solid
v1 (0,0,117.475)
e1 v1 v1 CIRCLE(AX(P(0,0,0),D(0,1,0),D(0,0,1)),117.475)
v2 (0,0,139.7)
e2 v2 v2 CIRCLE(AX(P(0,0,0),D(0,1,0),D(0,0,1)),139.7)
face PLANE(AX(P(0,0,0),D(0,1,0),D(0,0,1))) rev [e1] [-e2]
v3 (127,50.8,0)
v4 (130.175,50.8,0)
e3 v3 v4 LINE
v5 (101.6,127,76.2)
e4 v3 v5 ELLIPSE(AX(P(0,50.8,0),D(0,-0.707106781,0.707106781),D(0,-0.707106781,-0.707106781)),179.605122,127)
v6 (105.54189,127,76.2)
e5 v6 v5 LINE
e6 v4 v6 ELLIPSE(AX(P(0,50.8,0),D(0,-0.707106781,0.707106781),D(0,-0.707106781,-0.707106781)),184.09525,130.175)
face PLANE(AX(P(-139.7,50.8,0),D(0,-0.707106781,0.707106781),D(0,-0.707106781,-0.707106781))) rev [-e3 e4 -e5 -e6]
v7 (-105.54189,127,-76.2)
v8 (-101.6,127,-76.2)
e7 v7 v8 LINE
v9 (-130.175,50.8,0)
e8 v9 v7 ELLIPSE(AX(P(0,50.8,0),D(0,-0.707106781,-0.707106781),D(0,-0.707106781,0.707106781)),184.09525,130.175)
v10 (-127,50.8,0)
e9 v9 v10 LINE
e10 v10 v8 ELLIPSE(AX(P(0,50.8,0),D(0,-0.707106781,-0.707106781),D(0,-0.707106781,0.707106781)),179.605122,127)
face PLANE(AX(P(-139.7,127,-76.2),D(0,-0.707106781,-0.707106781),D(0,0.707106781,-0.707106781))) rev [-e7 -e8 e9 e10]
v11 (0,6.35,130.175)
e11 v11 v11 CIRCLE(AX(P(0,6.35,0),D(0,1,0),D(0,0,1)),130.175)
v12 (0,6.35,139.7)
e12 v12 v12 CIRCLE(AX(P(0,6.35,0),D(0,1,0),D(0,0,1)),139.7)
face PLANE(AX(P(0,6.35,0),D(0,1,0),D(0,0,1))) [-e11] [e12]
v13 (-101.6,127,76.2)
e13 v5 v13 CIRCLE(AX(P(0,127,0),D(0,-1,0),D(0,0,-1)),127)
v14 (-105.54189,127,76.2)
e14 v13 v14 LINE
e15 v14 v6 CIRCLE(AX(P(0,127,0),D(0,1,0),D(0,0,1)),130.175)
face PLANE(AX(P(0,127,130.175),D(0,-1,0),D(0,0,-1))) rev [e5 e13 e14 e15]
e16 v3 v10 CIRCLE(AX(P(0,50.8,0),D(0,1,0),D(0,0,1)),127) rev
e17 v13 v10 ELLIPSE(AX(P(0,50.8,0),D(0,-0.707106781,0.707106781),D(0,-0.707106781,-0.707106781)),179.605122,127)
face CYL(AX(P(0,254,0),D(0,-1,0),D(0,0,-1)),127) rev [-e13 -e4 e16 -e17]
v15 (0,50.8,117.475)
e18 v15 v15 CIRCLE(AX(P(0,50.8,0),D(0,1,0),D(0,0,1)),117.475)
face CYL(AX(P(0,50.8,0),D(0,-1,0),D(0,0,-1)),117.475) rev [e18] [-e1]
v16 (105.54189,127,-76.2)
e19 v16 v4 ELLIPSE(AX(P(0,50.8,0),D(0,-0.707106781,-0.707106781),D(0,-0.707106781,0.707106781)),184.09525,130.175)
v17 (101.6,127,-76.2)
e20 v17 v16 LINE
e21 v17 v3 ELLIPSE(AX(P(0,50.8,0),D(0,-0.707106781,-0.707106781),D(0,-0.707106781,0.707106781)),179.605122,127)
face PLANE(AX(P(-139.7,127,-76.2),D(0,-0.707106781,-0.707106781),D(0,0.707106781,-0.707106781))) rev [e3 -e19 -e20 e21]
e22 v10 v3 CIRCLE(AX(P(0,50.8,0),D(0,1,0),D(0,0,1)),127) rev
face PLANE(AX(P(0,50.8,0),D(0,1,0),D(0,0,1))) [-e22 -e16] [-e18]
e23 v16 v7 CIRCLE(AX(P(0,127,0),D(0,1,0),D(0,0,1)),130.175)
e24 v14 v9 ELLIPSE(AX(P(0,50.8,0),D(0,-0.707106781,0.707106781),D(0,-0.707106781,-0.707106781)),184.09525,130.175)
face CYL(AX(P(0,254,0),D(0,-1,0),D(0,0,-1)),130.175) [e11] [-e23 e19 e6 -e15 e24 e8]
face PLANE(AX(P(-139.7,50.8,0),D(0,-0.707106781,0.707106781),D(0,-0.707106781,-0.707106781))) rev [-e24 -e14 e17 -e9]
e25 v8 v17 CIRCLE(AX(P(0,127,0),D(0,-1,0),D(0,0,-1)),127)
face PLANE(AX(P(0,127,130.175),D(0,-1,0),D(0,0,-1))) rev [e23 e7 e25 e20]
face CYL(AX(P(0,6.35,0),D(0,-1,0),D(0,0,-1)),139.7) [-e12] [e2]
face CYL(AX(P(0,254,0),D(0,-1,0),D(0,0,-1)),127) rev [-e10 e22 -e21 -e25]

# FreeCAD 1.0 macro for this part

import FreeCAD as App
import Part
import Sketcher
Q = App.Units.Quantity


def add_polygon(sketch, points):
    """Adds a closed chain of lines whose ends are joined by coincident constraints."""
    first, n = sketch.GeometryCount, len(points)
    for a, b in zip(points, points[1:] + points[:1]):
        sketch.addGeometry(Part.LineSegment(App.Vector(*a, 0), App.Vector(*b, 0)), False)
    for i in range(n):
        sketch.addConstraint(Sketcher.Constraint("Coincident", first + i, 2, first + (i + 1) % n, 1))

doc = App.newDocument("Part")
params = doc.addObject("Spreadsheet::Sheet", "Params")
for row, (alias, value) in enumerate([
    ("sketch1_diameter", "10 in"),
    ("sketch1_diameter2", "9.25 in"),
    ("pad1_length", "2 in"),
    ("sketch2_diameter", "10 in"),
    ("sketch2_diameter2", "10.25 in"),
    ("pad2_length", "10 in"),
    ("sketch3_diameter", "11 in"),
    ("sketch3_diameter2", "10.25 in"),
    ("pad3_length", "0.25 in"),
    ("sketch4_width", "5 in"),
    ("sketch4_height", "5.125 in"),
    ("groove_angle", "360 deg"),
    ("sketch5_height", "6 in"),
], start=1):
    params.set(f"A{row}", alias)
    params.set(f"B{row}", "=" + value)
    params.setAlias(f"B{row}", alias)

body = doc.addObject("PartDesign::Body", "Body")

# Sketch on XZ plane
sketch1 = body.newObject("Sketcher::SketchObject", "Sketch")
sketch1.AttachmentSupport = (doc.getObject("XZ_Plane"), [""])
sketch1.MapMode = "FlatFace"
sketch1.addGeometry(Part.Circle(App.Vector(0, 0, 0), App.Vector(0, 0, 1), 127), False)
sketch1.addGeometry(Part.Circle(App.Vector(0, 0, 0), App.Vector(0, 0, 1), 117.475), False)
sketch1.addConstraint(Sketcher.Constraint("Coincident", 0, 3, -1, 1))
sketch1.addConstraint(Sketcher.Constraint("Coincident", 1, 3, -1, 1))
sketch1.addConstraint(Sketcher.Constraint("Diameter", 0, Q("10 in")))
sketch1.addConstraint(Sketcher.Constraint("Diameter", 1, Q("9.25 in")))
sketch1.setExpression("Constraints[2]", "Params.sketch1_diameter")
sketch1.setExpression("Constraints[3]", "Params.sketch1_diameter2")
pad1 = body.newObject("PartDesign::Pad", "Pad")
pad1.Profile = sketch1
pad1.setExpression("Length", "Params.pad1_length")
pad1.Reversed = True

# Sketch on XZ plane
sketch2 = body.newObject("Sketcher::SketchObject", "Sketch001")
sketch2.AttachmentSupport = (doc.getObject("XZ_Plane"), [""])
sketch2.MapMode = "FlatFace"
sketch2.addGeometry(Part.Circle(App.Vector(0, 0, 0), App.Vector(0, 0, 1), 130.175), False)
sketch2.addGeometry(Part.Circle(App.Vector(0, 0, 0), App.Vector(0, 0, 1), 127), False)
sketch2.addConstraint(Sketcher.Constraint("Coincident", 0, 3, -1, 1))
sketch2.addConstraint(Sketcher.Constraint("Coincident", 1, 3, -1, 1))
sketch2.addConstraint(Sketcher.Constraint("Diameter", 1, Q("10 in")))
sketch2.addConstraint(Sketcher.Constraint("Diameter", 0, Q("10.25 in")))
sketch2.setExpression("Constraints[2]", "Params.sketch2_diameter")
sketch2.setExpression("Constraints[3]", "Params.sketch2_diameter2")
pad2 = body.newObject("PartDesign::Pad", "Pad001")
pad2.Profile = sketch2
pad2.setExpression("Length", "Params.pad2_length")
pad2.Reversed = True

# Sketch on XZ plane
sketch3 = body.newObject("Sketcher::SketchObject", "Sketch002")
sketch3.AttachmentSupport = (doc.getObject("XZ_Plane"), [""])
sketch3.MapMode = "FlatFace"
sketch3.addGeometry(Part.Circle(App.Vector(0, 0, 0), App.Vector(0, 0, 1), 139.7), False)
sketch3.addGeometry(Part.Circle(App.Vector(0, 0, 0), App.Vector(0, 0, 1), 130.175), False)
sketch3.addConstraint(Sketcher.Constraint("Coincident", 0, 3, -1, 1))
sketch3.addConstraint(Sketcher.Constraint("Coincident", 1, 3, -1, 1))
sketch3.addConstraint(Sketcher.Constraint("Diameter", 0, Q("11 in")))
sketch3.addConstraint(Sketcher.Constraint("Diameter", 1, Q("10.25 in")))
sketch3.setExpression("Constraints[2]", "Params.sketch3_diameter")
sketch3.setExpression("Constraints[3]", "Params.sketch3_diameter2")
pad3 = body.newObject("PartDesign::Pad", "Pad002")
pad3.Profile = sketch3
pad3.setExpression("Length", "Params.pad3_length")
pad3.Reversed = True

# Sketch on YZ plane
sketch4 = body.newObject("Sketcher::SketchObject", "Sketch003")
sketch4.AttachmentSupport = (doc.getObject("YZ_Plane"), [""])
sketch4.MapMode = "FlatFace"
add_polygon(sketch4, [(254, 130.175), (127, 130.175), (127, 0), (254, 0)])  # lines 0-3
sketch4.addConstraint(Sketcher.Constraint("Horizontal", 0))
sketch4.addConstraint(Sketcher.Constraint("Vertical", 1))
sketch4.addConstraint(Sketcher.Constraint("Horizontal", 2))
sketch4.addConstraint(Sketcher.Constraint("Vertical", 3))
sketch4.addConstraint(Sketcher.Constraint("PointOnObject", 1, 2, -1))
sketch4.addConstraint(Sketcher.Constraint("DistanceX", 0, 2, 0, 1, Q("5 in")))
sketch4.addConstraint(Sketcher.Constraint("DistanceX", -1, 1, 0, 2, Q("5 in")))
sketch4.addConstraint(Sketcher.Constraint("DistanceY", 1, 2, 1, 1, Q("5.125 in")))
sketch4.setExpression("Constraints[9]", "Params.sketch4_width")
sketch4.setExpression("Constraints[11]", "Params.sketch4_height")
groove = body.newObject("PartDesign::Groove", "Groove")
groove.Profile = sketch4
groove.ReferenceAxis = (sketch4, ["H_Axis"])
groove.setExpression("Angle", "Params.groove_angle")

# Sketch on YZ plane
sketch5 = body.newObject("Sketcher::SketchObject", "Sketch004")
sketch5.AttachmentSupport = (doc.getObject("YZ_Plane"), [""])
sketch5.MapMode = "FlatFace"
add_polygon(sketch5, [(127, -76.2), (127, 76.2), (50.8, 0)])  # lines 0-2
sketch5.addConstraint(Sketcher.Constraint("Vertical", 0))
sketch5.addConstraint(Sketcher.Constraint("PointOnObject", 1, 2, -1))
sketch5.addConstraint(Sketcher.Constraint("Perpendicular", 1, 2))
sketch5.addConstraint(Sketcher.Constraint("Equal", 1, 2))
sketch5.addConstraint(Sketcher.Constraint("DistanceY", 0, 1, 0, 2, Q("6 in")))
sketch5.addConstraint(Sketcher.Constraint("DistanceX", -1, 1, 0, 2, Q("5 in")))
sketch5.setExpression("Constraints[7]", "Params.sketch5_height")
pocket1 = body.newObject("PartDesign::Pocket", "Pocket")
pocket1.Profile = sketch5
pocket1.Type = "ThroughAll"
pocket1.Midplane = True

doc.recompute()
